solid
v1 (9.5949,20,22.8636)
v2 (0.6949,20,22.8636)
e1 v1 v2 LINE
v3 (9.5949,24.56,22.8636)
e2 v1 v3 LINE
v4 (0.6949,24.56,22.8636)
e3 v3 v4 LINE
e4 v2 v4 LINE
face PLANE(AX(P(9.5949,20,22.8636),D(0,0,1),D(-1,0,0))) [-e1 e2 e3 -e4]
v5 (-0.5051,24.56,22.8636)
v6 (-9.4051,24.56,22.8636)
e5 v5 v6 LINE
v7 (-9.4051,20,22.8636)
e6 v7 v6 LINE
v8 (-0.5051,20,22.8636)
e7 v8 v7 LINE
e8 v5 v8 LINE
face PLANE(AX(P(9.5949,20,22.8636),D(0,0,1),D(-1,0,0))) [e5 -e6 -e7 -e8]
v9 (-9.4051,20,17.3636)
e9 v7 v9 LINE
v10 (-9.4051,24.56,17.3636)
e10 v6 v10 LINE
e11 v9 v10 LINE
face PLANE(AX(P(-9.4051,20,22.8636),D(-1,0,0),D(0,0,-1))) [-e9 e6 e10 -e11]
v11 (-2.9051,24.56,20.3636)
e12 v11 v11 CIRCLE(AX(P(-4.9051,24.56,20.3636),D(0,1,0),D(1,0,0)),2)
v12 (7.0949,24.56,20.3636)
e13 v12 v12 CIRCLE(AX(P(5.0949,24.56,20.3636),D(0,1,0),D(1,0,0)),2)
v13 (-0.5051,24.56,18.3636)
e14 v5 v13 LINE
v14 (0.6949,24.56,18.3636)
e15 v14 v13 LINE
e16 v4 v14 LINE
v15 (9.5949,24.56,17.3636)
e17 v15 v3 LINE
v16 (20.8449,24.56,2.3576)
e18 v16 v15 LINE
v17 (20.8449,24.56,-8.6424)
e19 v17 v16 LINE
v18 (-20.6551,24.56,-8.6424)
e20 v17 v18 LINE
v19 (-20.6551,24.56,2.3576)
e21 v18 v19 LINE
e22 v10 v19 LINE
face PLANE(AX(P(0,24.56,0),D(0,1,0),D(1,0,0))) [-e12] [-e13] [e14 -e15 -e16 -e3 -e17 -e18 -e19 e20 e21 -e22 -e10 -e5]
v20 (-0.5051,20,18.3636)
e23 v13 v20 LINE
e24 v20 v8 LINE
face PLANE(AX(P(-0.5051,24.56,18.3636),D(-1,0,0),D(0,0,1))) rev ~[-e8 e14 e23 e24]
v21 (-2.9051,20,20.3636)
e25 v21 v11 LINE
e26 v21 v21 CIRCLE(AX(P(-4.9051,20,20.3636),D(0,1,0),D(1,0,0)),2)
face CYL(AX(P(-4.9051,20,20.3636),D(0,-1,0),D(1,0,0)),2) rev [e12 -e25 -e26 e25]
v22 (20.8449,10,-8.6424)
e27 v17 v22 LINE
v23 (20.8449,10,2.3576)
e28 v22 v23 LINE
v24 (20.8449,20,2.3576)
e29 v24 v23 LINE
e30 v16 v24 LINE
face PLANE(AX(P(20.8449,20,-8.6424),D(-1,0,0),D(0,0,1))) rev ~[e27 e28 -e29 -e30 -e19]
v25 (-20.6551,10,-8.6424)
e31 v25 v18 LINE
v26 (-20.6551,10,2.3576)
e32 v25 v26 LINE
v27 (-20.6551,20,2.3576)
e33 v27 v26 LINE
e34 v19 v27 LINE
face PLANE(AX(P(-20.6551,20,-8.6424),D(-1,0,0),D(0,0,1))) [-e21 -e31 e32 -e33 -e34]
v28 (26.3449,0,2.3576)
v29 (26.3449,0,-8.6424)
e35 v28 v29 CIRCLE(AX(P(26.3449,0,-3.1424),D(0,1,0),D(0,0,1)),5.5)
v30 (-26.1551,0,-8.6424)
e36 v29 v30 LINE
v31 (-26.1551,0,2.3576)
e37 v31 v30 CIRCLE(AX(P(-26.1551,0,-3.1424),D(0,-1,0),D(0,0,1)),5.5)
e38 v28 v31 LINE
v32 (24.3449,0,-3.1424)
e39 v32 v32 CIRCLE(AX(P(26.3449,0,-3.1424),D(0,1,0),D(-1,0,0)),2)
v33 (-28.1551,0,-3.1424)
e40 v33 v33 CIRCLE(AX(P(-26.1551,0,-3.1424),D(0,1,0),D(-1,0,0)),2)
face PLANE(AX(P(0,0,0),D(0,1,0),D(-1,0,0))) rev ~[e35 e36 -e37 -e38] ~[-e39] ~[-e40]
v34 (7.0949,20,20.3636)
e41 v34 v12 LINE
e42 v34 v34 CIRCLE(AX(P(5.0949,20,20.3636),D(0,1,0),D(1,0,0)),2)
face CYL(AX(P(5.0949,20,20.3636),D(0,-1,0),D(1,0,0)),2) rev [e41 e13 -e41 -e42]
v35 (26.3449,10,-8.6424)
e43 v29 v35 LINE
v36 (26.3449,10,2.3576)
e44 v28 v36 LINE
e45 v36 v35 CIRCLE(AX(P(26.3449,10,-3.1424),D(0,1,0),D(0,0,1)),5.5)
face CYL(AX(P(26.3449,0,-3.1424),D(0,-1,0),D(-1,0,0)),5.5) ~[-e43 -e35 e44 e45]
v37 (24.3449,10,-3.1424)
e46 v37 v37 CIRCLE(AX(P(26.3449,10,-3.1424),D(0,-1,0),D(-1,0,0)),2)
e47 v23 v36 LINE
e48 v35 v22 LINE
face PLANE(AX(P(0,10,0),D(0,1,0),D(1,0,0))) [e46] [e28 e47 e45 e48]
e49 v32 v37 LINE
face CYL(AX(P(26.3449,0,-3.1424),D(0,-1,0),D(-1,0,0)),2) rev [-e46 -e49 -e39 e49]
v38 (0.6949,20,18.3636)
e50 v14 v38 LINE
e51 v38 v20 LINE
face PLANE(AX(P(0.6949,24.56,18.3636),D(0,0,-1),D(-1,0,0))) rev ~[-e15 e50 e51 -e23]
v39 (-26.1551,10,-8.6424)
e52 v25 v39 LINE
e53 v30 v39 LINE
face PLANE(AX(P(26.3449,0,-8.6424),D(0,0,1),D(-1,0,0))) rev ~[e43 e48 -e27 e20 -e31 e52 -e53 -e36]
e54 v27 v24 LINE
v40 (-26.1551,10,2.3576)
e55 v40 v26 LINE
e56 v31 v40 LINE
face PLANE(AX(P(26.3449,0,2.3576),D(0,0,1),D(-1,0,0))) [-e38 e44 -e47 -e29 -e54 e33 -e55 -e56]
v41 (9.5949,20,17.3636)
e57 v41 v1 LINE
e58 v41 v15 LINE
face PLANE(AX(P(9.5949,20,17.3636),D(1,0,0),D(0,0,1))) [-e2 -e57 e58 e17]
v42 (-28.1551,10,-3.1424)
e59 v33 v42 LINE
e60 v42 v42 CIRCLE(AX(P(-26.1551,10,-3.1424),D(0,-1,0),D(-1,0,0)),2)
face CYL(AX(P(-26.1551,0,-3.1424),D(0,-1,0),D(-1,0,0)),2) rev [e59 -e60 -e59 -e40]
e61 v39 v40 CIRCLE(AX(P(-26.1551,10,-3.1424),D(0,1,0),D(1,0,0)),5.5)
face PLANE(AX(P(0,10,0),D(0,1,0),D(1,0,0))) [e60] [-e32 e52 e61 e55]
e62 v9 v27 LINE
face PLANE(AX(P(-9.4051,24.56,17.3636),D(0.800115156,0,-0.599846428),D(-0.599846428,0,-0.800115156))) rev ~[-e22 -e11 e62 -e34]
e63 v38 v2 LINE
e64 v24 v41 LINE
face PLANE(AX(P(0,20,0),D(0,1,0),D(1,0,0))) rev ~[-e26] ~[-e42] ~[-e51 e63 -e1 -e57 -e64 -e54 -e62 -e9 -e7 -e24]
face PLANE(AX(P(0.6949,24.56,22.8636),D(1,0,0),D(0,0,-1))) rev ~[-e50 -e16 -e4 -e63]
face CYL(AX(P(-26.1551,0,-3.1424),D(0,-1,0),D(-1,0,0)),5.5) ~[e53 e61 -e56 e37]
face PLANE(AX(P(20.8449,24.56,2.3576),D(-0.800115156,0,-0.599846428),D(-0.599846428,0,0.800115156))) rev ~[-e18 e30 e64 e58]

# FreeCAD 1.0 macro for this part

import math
import FreeCAD as App
import Part
import Sketcher
from FreeCAD import Vector
Q = App.Units.Quantity

doc = App.newDocument("Part")
body = doc.addObject("PartDesign::Body", "Body")

sketch1 = body.newObject("Sketcher::SketchObject", "Sketch")
sketch1.AttachmentSupport = (doc.getObject("XZ_Plane"), [""])
sketch1.MapMode = "FlatFace"
sketch1.addGeometry(Part.LineSegment(Vector(26.3, -8.6, 0), Vector(-26.2, -8.6, 0)), False)
sketch1.addGeometry(Part.ArcOfCircle(Part.Circle(Vector(-26.2, -3.1, 0), Vector(0, 0, 1), 5.5), math.radians(90), math.radians(270)), False)
sketch1.addGeometry(Part.LineSegment(Vector(-26.2, 2.4, 0), Vector(26.3, 2.4, 0)), False)
sketch1.addGeometry(Part.ArcOfCircle(Part.Circle(Vector(26.3, -3.1, 0), Vector(0, 0, 1), 5.5), math.radians(-90), math.radians(90)), False)
sketch1.addGeometry(Part.Circle(Vector(26.3, -3.1, 0), Vector(0, 0, 1), 2), False)
sketch1.addGeometry(Part.Circle(Vector(-26.2, -3.1, 0), Vector(0, 0, 1), 2), False)
sketch1.addConstraint(Sketcher.Constraint("Tangent", 0, 2, 1, 2))
sketch1.addConstraint(Sketcher.Constraint("Tangent", 1, 1, 2, 1))
sketch1.addConstraint(Sketcher.Constraint("Tangent", 2, 2, 3, 2))
sketch1.addConstraint(Sketcher.Constraint("Tangent", 3, 1, 0, 1))
sketch1.addConstraint(Sketcher.Constraint("Horizontal", 0))
sketch1.addConstraint(Sketcher.Constraint("Horizontal", 2))
sketch1.addConstraint(Sketcher.Constraint("Coincident", 4, 3, 3, 3))
sketch1.addConstraint(Sketcher.Constraint("Coincident", 5, 3, 1, 3))
sketch1.addConstraint(Sketcher.Constraint("Equal", 4, 5))
sketch1.addConstraint(Sketcher.Constraint("Radius", 1, Q("5.5 mm")))
sketch1.addConstraint(Sketcher.Constraint("Diameter", 4, Q("4 mm")))
sketch1.addConstraint(Sketcher.Constraint("DistanceX", 0, 2, 0, 1, Q("52.5 mm")))
sketch1.addConstraint(Sketcher.Constraint("DistanceX", 1, 3, -1, 1, Q("26.155 mm")))
sketch1.addConstraint(Sketcher.Constraint("DistanceY", 1, 3, -1, 1, Q("3.1424 mm")))
pad1 = body.newObject("PartDesign::Pad", "Pad")
pad1.Profile = sketch1
pad1.Length = 20
pad1.Reversed = True

sketch2 = body.newObject("Sketcher::SketchObject", "Sketch001")
sketch2.AttachmentSupport = (doc.getObject("XZ_Plane"), [""])
sketch2.MapMode = "FlatFace"
sketch2.AttachmentOffset = App.Placement(Vector(0, 0, -20), App.Rotation())
sketch2.addGeometry(Part.ArcOfCircle(Part.Circle(Vector(-26.2, -3.1, 0), Vector(0, 0, 1), 5.5), math.radians(90), math.radians(270)), False)
sketch2.addGeometry(Part.LineSegment(Vector(-26.2, 2.4, 0), Vector(-20.7, 2.4, 0)), False)
sketch2.addGeometry(Part.LineSegment(Vector(-20.7, 2.4, 0), Vector(-20.7, -8.6, 0)), False)
sketch2.addGeometry(Part.LineSegment(Vector(-20.7, -8.6, 0), Vector(-26.2, -8.6, 0)), False)
sketch2.addGeometry(Part.Circle(Vector(-26.2, -3.1, 0), Vector(0, 0, 1), 2), False)
sketch2.addGeometry(Part.LineSegment(Vector(26.3, -8.6, 0), Vector(20.8, -8.6, 0)), False)
sketch2.addGeometry(Part.LineSegment(Vector(20.8, -8.6, 0), Vector(20.8, 2.4, 0)), False)
sketch2.addGeometry(Part.LineSegment(Vector(20.8, 2.4, 0), Vector(26.3, 2.4, 0)), False)
sketch2.addGeometry(Part.ArcOfCircle(Part.Circle(Vector(26.3, -3.1, 0), Vector(0, 0, 1), 5.5), math.radians(-90), math.radians(90)), False)
sketch2.addGeometry(Part.Circle(Vector(26.3, -3.1, 0), Vector(0, 0, 1), 2), False)
sketch2.addConstraint(Sketcher.Constraint("Tangent", 0, 1, 1, 1))
sketch2.addConstraint(Sketcher.Constraint("Coincident", 1, 2, 2, 1))
sketch2.addConstraint(Sketcher.Constraint("Coincident", 2, 2, 3, 1))
sketch2.addConstraint(Sketcher.Constraint("Tangent", 3, 2, 0, 2))
sketch2.addConstraint(Sketcher.Constraint("Coincident", 5, 2, 6, 1))
sketch2.addConstraint(Sketcher.Constraint("Coincident", 6, 2, 7, 1))
sketch2.addConstraint(Sketcher.Constraint("Tangent", 7, 2, 8, 2))
sketch2.addConstraint(Sketcher.Constraint("Tangent", 8, 1, 5, 1))
sketch2.addConstraint(Sketcher.Constraint("Horizontal", 1))
sketch2.addConstraint(Sketcher.Constraint("Vertical", 2))
sketch2.addConstraint(Sketcher.Constraint("Horizontal", 3))
sketch2.addConstraint(Sketcher.Constraint("Horizontal", 5))
sketch2.addConstraint(Sketcher.Constraint("Vertical", 6))
sketch2.addConstraint(Sketcher.Constraint("Horizontal", 7))
sketch2.addConstraint(Sketcher.Constraint("Coincident", 4, 3, 0, 3))
sketch2.addConstraint(Sketcher.Constraint("Coincident", 9, 3, 8, 3))
sketch2.addConstraint(Sketcher.Constraint("Equal", 0, 8))
sketch2.addConstraint(Sketcher.Constraint("Equal", 4, 9))
sketch2.addConstraint(Sketcher.Constraint("Horizontal", 4, 3, 8, 3))
sketch2.addConstraint(Sketcher.Constraint("Equal", 3, 5))
sketch2.addConstraint(Sketcher.Constraint("Diameter", 4, Q("4 mm")))
sketch2.addConstraint(Sketcher.Constraint("Radius", 0, Q("5.5 mm")))
sketch2.addConstraint(Sketcher.Constraint("DistanceX", 1, 1, 1, 2, Q("5.5 mm")))
sketch2.addConstraint(Sketcher.Constraint("DistanceX", 1, 2, 8, 3, Q("47 mm")))
sketch2.addConstraint(Sketcher.Constraint("DistanceX", 0, 3, -1, 1, Q("26.155 mm")))
sketch2.addConstraint(Sketcher.Constraint("DistanceY", 0, 3, -1, 1, Q("3.1424 mm")))
pocket1 = body.newObject("PartDesign::Pocket", "Pocket")
pocket1.Profile = sketch2
pocket1.Length = 10
pocket1.Reversed = True

sketch3 = body.newObject("Sketcher::SketchObject", "Sketch002")
sketch3.AttachmentSupport = (doc.getObject("XZ_Plane"), [""])
sketch3.MapMode = "FlatFace"
sketch3.AttachmentOffset = App.Placement(Vector(0, 0, -20), App.Rotation())
sketch3.addGeometry(Part.LineSegment(Vector(20.8, -8.6, 0), Vector(-20.7, -8.6, 0)), False)
sketch3.addGeometry(Part.LineSegment(Vector(-20.7, -8.6, 0), Vector(-20.7, 17.4, 0)), False)
sketch3.addGeometry(Part.LineSegment(Vector(-20.7, 17.4, 0), Vector(-9.4, 17.4, 0)), False)
sketch3.addGeometry(Part.LineSegment(Vector(-9.4, 17.4, 0), Vector(-9.4, 22.9, 0)), False)
sketch3.addGeometry(Part.LineSegment(Vector(-9.4, 22.9, 0), Vector(9.6, 22.9, 0)), False)
sketch3.addGeometry(Part.LineSegment(Vector(9.6, 22.9, 0), Vector(9.6, 17.4, 0)), False)
sketch3.addGeometry(Part.LineSegment(Vector(9.6, 17.4, 0), Vector(20.8, 17.4, 0)), False)
sketch3.addGeometry(Part.LineSegment(Vector(20.8, 17.4, 0), Vector(20.8, -8.6, 0)), False)
sketch3.addGeometry(Part.Circle(Vector(5.1, 20.4, 0), Vector(0, 0, 1), 2), False)
sketch3.addGeometry(Part.Circle(Vector(-4.9, 20.4, 0), Vector(0, 0, 1), 2), False)
sketch3.addConstraint(Sketcher.Constraint("Coincident", 0, 2, 1, 1))
sketch3.addConstraint(Sketcher.Constraint("Coincident", 1, 2, 2, 1))
sketch3.addConstraint(Sketcher.Constraint("Coincident", 2, 2, 3, 1))
sketch3.addConstraint(Sketcher.Constraint("Coincident", 3, 2, 4, 1))
sketch3.addConstraint(Sketcher.Constraint("Coincident", 4, 2, 5, 1))
sketch3.addConstraint(Sketcher.Constraint("Coincident", 5, 2, 6, 1))
sketch3.addConstraint(Sketcher.Constraint("Coincident", 6, 2, 7, 1))
sketch3.addConstraint(Sketcher.Constraint("Coincident", 7, 2, 0, 1))
sketch3.addConstraint(Sketcher.Constraint("Horizontal", 0))
sketch3.addConstraint(Sketcher.Constraint("Vertical", 1))
sketch3.addConstraint(Sketcher.Constraint("Horizontal", 2))
sketch3.addConstraint(Sketcher.Constraint("Vertical", 3))
sketch3.addConstraint(Sketcher.Constraint("Horizontal", 4))
sketch3.addConstraint(Sketcher.Constraint("Vertical", 5))
sketch3.addConstraint(Sketcher.Constraint("Horizontal", 6))
sketch3.addConstraint(Sketcher.Constraint("Vertical", 7))
sketch3.addConstraint(Sketcher.Constraint("Equal", 8, 9))
sketch3.addConstraint(Sketcher.Constraint("Horizontal", 8, 3, 9, 3))
sketch3.addConstraint(Sketcher.Constraint("Horizontal", 2, 2, 5, 2))
sketch3.addConstraint(Sketcher.Constraint("Equal", 2, 6))
sketch3.addConstraint(Sketcher.Constraint("Diameter", 8, Q("4 mm")))
sketch3.addConstraint(Sketcher.Constraint("DistanceX", 4, 1, 4, 2, Q("19 mm")))
sketch3.addConstraint(Sketcher.Constraint("DistanceY", 1, 2, 9, 3, Q("3 mm")))
sketch3.addConstraint(Sketcher.Constraint("DistanceX", 2, 2, 9, 3, Q("4.5 mm")))
sketch3.addConstraint(Sketcher.Constraint("DistanceX", 8, 3, 4, 2, Q("4.5 mm")))
sketch3.addConstraint(Sketcher.Constraint("DistanceX", 0, 2, 0, 1, Q("41.5 mm")))
sketch3.addConstraint(Sketcher.Constraint("DistanceY", 3, 1, 3, 2, Q("5.5 mm")))
sketch3.addConstraint(Sketcher.Constraint("DistanceY", 1, 1, 1, 2, Q("26.006 mm")))
sketch3.addConstraint(Sketcher.Constraint("DistanceX", -1, 1, 8, 3, Q("5.095 mm")))
sketch3.addConstraint(Sketcher.Constraint("DistanceY", -1, 1, 8, 3, Q("20.3636 mm")))
pad2 = body.newObject("PartDesign::Pad", "Pad001")
pad2.Profile = sketch3
pad2.Length = 4.56
pad2.Reversed = True

sketch4 = body.newObject("Sketcher::SketchObject", "Sketch003")
sketch4.AttachmentSupport = (doc.getObject("XZ_Plane"), [""])
sketch4.MapMode = "FlatFace"
sketch4.AttachmentOffset = App.Placement(Vector(0, 0, -24.56), App.Rotation())
sketch4.addGeometry(Part.LineSegment(Vector(-0.5, 18.4, 0), Vector(-0.5, 27.4, 0)), False)
sketch4.addGeometry(Part.LineSegment(Vector(-0.5, 27.4, 0), Vector(0.7, 27.4, 0)), False)
sketch4.addGeometry(Part.LineSegment(Vector(0.7, 27.4, 0), Vector(0.7, 18.4, 0)), False)
sketch4.addGeometry(Part.LineSegment(Vector(0.7, 18.4, 0), Vector(-0.5, 18.4, 0)), False)
sketch4.addConstraint(Sketcher.Constraint("Coincident", 0, 2, 1, 1))
sketch4.addConstraint(Sketcher.Constraint("Coincident", 1, 2, 2, 1))
sketch4.addConstraint(Sketcher.Constraint("Coincident", 2, 2, 3, 1))
sketch4.addConstraint(Sketcher.Constraint("Coincident", 3, 2, 0, 1))
sketch4.addConstraint(Sketcher.Constraint("Vertical", 0))
sketch4.addConstraint(Sketcher.Constraint("Horizontal", 1))
sketch4.addConstraint(Sketcher.Constraint("Vertical", 2))
sketch4.addConstraint(Sketcher.Constraint("Horizontal", 3))
sketch4.addConstraint(Sketcher.Constraint("DistanceX", 1, 1, 1, 2, Q("1.2 mm")))
sketch4.addConstraint(Sketcher.Constraint("DistanceY", 0, 1, 0, 2, Q("9 mm")))
sketch4.addConstraint(Sketcher.Constraint("DistanceX", 0, 2, -1, 1, Q("0.505 mm")))
sketch4.addConstraint(Sketcher.Constraint("DistanceY", -1, 1, 0, 2, Q("27.3636 mm")))
pocket2 = body.newObject("PartDesign::Pocket", "Pocket001")
pocket2.Profile = sketch4
pocket2.Length = 4.56
pocket2.Reversed = True

sketch5 = body.newObject("Sketcher::SketchObject", "Sketch004")
sketch5.AttachmentSupport = (doc.getObject("XZ_Plane"), [""])
sketch5.MapMode = "FlatFace"
sketch5.AttachmentOffset = App.Placement(Vector(0, 0, -24.56), App.Rotation())
sketch5.addGeometry(Part.LineSegment(Vector(21, 17, 0), Vector(21, 2, 0)), False)
sketch5.addGeometry(Part.LineSegment(Vector(21, 2, 0), Vector(10, 17, 0)), False)
sketch5.addGeometry(Part.LineSegment(Vector(10, 17, 0), Vector(21, 17, 0)), False)
sketch5.addGeometry(Part.LineSegment(Vector(-21, 17, 0), Vector(-9, 17, 0)), False)
sketch5.addGeometry(Part.LineSegment(Vector(-9, 17, 0), Vector(-21, 2, 0)), False)
sketch5.addGeometry(Part.LineSegment(Vector(-21, 2, 0), Vector(-21, 17, 0)), False)
sketch5.addConstraint(Sketcher.Constraint("Coincident", 0, 2, 1, 1))
sketch5.addConstraint(Sketcher.Constraint("Coincident", 1, 2, 2, 1))
sketch5.addConstraint(Sketcher.Constraint("Coincident", 2, 2, 0, 1))
sketch5.addConstraint(Sketcher.Constraint("Coincident", 3, 2, 4, 1))
sketch5.addConstraint(Sketcher.Constraint("Coincident", 4, 2, 5, 1))
sketch5.addConstraint(Sketcher.Constraint("Coincident", 5, 2, 3, 1))
sketch5.addConstraint(Sketcher.Constraint("Vertical", 0))
sketch5.addConstraint(Sketcher.Constraint("Horizontal", 2))
sketch5.addConstraint(Sketcher.Constraint("Horizontal", 3))
sketch5.addConstraint(Sketcher.Constraint("Vertical", 5))
sketch5.addConstraint(Sketcher.Constraint("Horizontal", 2, 2, 3, 2))
sketch5.addConstraint(Sketcher.Constraint("Horizontal", 0, 2, 4, 2))
sketch5.addConstraint(Sketcher.Constraint("Equal", 2, 3))
sketch5.addConstraint(Sketcher.Constraint("DistanceX", 3, 2, 1, 2, Q("19 mm")))
sketch5.addConstraint(Sketcher.Constraint("DistanceX", 2, 1, 2, 2, Q("11.25 mm")))
sketch5.addConstraint(Sketcher.Constraint("Angle", 1, Q("126.859 deg")))
sketch5.addConstraint(Sketcher.Constraint("DistanceX", -1, 1, 0, 2, Q("20.845 mm")))
sketch5.addConstraint(Sketcher.Constraint("DistanceY", -1, 1, 0, 2, Q("2.3576 mm")))
pocket3 = body.newObject("PartDesign::Pocket", "Pocket002")
pocket3.Profile = sketch5
pocket3.Length = 4.56
pocket3.Reversed = True

doc.recompute()
